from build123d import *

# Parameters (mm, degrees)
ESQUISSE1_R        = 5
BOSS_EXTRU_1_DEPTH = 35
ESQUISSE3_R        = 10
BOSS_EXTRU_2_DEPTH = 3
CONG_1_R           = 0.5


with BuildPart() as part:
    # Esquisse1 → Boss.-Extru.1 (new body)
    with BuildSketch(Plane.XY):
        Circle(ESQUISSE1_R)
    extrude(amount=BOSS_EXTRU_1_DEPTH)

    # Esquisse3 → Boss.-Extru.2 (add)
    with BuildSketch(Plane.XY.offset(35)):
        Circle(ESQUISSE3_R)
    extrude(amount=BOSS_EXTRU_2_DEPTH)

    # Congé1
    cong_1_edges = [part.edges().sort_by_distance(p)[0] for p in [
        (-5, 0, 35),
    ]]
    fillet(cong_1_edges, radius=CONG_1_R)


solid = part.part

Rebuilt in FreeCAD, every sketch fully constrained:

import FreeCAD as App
import Part
import Sketcher
from FreeCAD import Vector


def edges_at(feature, points):
    """Names of the edges that pass closest to the given points."""
    edges = feature.Shape.Edges
    near = lambda p: min(range(len(edges)), key=lambda i: edges[i].distToShape(Part.Vertex(*p))[0])
    return sorted({f"Edge{near(p) + 1}" for p in points})

doc = App.newDocument("Part")
params = doc.addObject("Spreadsheet::Sheet", "Params")
for row, (alias, value) in enumerate([
    ("sketch1_diameter", "10 mm"),
    ("pad1_length", "35 mm"),
    ("sketch2_diameter", "20 mm"),
    ("pad2_length", "3 mm"),
    ("fillet_radius", "0.5 mm"),
], start=1):
    params.set(f"A{row}", alias)
    params.set(f"B{row}", "=" + value)
    params.setAlias(f"B{row}", alias)

body = doc.addObject("PartDesign::Body", "Body")

sketch1 = doc.addObject("Sketcher::SketchObject", "Sketch")
body.addObject(sketch1)
sketch1.AttachmentSupport = (doc.XY_Plane, [""])
sketch1.MapMode = "FlatFace"
sketch1.addGeometry(Part.Circle(Vector(0, 0, 0), Vector(0, 0, 1), 5), False)
sketch1.addConstraint([
    Sketcher.Constraint("Coincident", 0, 3, -1, 1),
    Sketcher.Constraint("Diameter", 0, 10.0),
])
sketch1.setExpression("Constraints[1]", "Params.sketch1_diameter")
pad1 = doc.addObject("PartDesign::Pad", "Pad")
body.addObject(pad1)
pad1.Profile = sketch1
pad1.setExpression("Length", "Params.pad1_length")

sketch2 = doc.addObject("Sketcher::SketchObject", "Sketch001")
body.addObject(sketch2)
sketch2.AttachmentSupport = (doc.XY_Plane, [""])
sketch2.MapMode = "FlatFace"
sketch2.AttachmentOffset = App.Placement(Vector(0, 0, 35), App.Rotation())
sketch2.addGeometry(Part.Circle(Vector(0, 0, 0), Vector(0, 0, 1), 10), False)
sketch2.addConstraint([
    Sketcher.Constraint("Coincident", 0, 3, -1, 1),
    Sketcher.Constraint("Diameter", 0, 20.0),
])
sketch2.setExpression("Constraints[1]", "Params.sketch2_diameter")
pad2 = doc.addObject("PartDesign::Pad", "Pad001")
body.addObject(pad2)
pad2.Profile = sketch2
pad2.setExpression("Length", "Params.pad2_length")
doc.recompute()

fillet = doc.addObject("PartDesign::Fillet", "Fillet")
body.addObject(fillet)
fillet.Base = (pad2, edges_at(pad2, [(-5, 0, 35)]))
fillet.setExpression("Radius", "Params.fillet_radius")

doc.recompute()
